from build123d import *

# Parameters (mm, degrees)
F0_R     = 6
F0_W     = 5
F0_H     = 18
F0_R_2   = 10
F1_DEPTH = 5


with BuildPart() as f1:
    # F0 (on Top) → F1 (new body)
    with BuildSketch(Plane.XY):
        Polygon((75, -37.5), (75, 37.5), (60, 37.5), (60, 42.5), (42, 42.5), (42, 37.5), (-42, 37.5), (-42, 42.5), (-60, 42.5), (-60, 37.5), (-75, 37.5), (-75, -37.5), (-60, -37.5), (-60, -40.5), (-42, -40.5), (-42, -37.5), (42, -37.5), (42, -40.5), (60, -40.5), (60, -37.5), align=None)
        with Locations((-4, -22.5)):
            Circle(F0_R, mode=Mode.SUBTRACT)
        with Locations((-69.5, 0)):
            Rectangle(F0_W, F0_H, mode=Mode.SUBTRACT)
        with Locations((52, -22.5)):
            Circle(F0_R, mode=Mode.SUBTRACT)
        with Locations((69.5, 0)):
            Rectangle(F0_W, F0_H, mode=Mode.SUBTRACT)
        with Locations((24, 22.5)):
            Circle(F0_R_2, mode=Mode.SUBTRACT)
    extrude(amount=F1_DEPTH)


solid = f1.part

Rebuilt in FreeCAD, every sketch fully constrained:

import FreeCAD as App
import Part
import Sketcher


def add_polygon(sketch, points):
    """Adds a closed chain of lines whose ends are joined by coincident constraints."""
    first, n = sketch.GeometryCount, len(points)
    for a, b in zip(points, points[1:] + points[:1]):
        sketch.addGeometry(Part.LineSegment(App.Vector(*a, 0), App.Vector(*b, 0)), False)
    for i in range(n):
        sketch.addConstraint(Sketcher.Constraint("Coincident", first + i, 2, first + (i + 1) % n, 1))

doc = App.newDocument("Part")
params = doc.addObject("Spreadsheet::Sheet", "Params")
for row, (alias, value) in enumerate([
    ("sketch1_diameter", "12 mm"),
    ("sketch1_diameter2", "20 mm"),
    ("sketch1_width", "15 mm"),
    ("sketch1_width2", "18 mm"),
    ("sketch1_width3", "84 mm"),
    ("pad1_length", "5 mm"),
], start=1):
    params.set(f"A{row}", alias)
    params.set(f"B{row}", "=" + value)
    params.setAlias(f"B{row}", alias)

body = doc.addObject("PartDesign::Body", "Body")

sketch1 = doc.addObject("Sketcher::SketchObject", "Sketch")
body.addObject(sketch1)
sketch1.AttachmentSupport = (doc.XY_Plane, [""])
sketch1.MapMode = "FlatFace"
add_polygon(sketch1, [(75, -37.5), (75, 37.5), (60, 37.5), (60, 42.5), (42, 42.5), (42, 37.5), (-42, 37.5), (-42, 42.5), (-60, 42.5), (-60, 37.5), (-75, 37.5), (-75, -37.5), (-60, -37.5), (-60, -40.5), (-42, -40.5), (-42, -37.5), (42, -37.5), (42, -40.5), (60, -40.5), (60, -37.5)])
sketch1.addGeometry(Part.Circle(App.Vector(-4, -22.5, 0), App.Vector(0, 0, 1), 6), False)
add_polygon(sketch1, [(-67, -9), (-72, -9), (-72, 9), (-67, 9)])
sketch1.addGeometry(Part.Circle(App.Vector(52, -22.5, 0), App.Vector(0, 0, 1), 6), False)
add_polygon(sketch1, [(72, -9), (67, -9), (67, 9), (72, 9)])
sketch1.addGeometry(Part.Circle(App.Vector(24, 22.5, 0), App.Vector(0, 0, 1), 10), False)
sketch1.addConstraint([
    Sketcher.Constraint("Vertical", 0),
    Sketcher.Constraint("Horizontal", 1),
    Sketcher.Constraint("Vertical", 2),
    Sketcher.Constraint("Horizontal", 3),
    Sketcher.Constraint("Vertical", 4),
    Sketcher.Constraint("Horizontal", 5),
    Sketcher.Constraint("Vertical", 6),
    Sketcher.Constraint("Horizontal", 7),
    Sketcher.Constraint("Vertical", 8),
    Sketcher.Constraint("Horizontal", 9),
    Sketcher.Constraint("Vertical", 10),
    Sketcher.Constraint("Horizontal", 11),
    Sketcher.Constraint("Vertical", 12),
    Sketcher.Constraint("Horizontal", 13),
    Sketcher.Constraint("Vertical", 14),
    Sketcher.Constraint("Horizontal", 15),
    Sketcher.Constraint("Vertical", 16),
    Sketcher.Constraint("Horizontal", 17),
    Sketcher.Constraint("Vertical", 18),
    Sketcher.Constraint("Horizontal", 19),
    Sketcher.Constraint("Horizontal", 21),
    Sketcher.Constraint("Vertical", 22),
    Sketcher.Constraint("Horizontal", 23),
    Sketcher.Constraint("Vertical", 24),
    Sketcher.Constraint("Horizontal", 26),
    Sketcher.Constraint("Vertical", 27),
    Sketcher.Constraint("Horizontal", 28),
    Sketcher.Constraint("Vertical", 29),
    Sketcher.Constraint("Equal", 20, 25),
    Sketcher.Constraint("Symmetric", 0, 2, 10, 2, -1, 1),
    Sketcher.Constraint("Symmetric", 4, 2, 14, 2, -1, 1),
    Sketcher.Constraint("Symmetric", 8, 2, 18, 2, -1, 1),
    Sketcher.Constraint("Symmetric", 23, 2, 26, 2, -1, 1),
    Sketcher.Constraint("Symmetric", 21, 2, 28, 2, -1, 1),
    Sketcher.Constraint("Symmetric", 3, 2, 6, 2, -2),
    Sketcher.Constraint("Symmetric", 1, 2, 8, 2, -2),
    Sketcher.Constraint("Symmetric", 13, 2, 16, 2, -2),
    Sketcher.Constraint("Horizontal", 20, 3, 25, 3),
    Sketcher.Constraint("Horizontal", 1, 2, 4, 2),
    Sketcher.Constraint("Horizontal", 24, 2, 26, 2),
    Sketcher.Constraint("Vertical", 8, 2, 11, 2),
    Sketcher.Constraint("Equal", 28, 2),
    Sketcher.Constraint("Equal", 17, 22),
    Sketcher.Constraint("Diameter", 20, 12.0),
    Sketcher.Constraint("Diameter", 30, 20.0),
    Sketcher.Constraint("DistanceX", 1, 2, 1, 1, 15.0),
    Sketcher.Constraint("DistanceX", 3, 2, 3, 1, 18.0),
    Sketcher.Constraint("DistanceX", 5, 2, 5, 1, 84.0),
    Sketcher.Constraint("DistanceX", 21, 2, 21, 1, 5.0),
    Sketcher.Constraint("DistanceY", 0, 1, 0, 2, 75.0),
    Sketcher.Constraint("DistanceY", 12, 2, 12, 1, 3.0),
    Sketcher.Constraint("DistanceX", 20, 3, -1, 1, 4.0),
    Sketcher.Constraint("DistanceX", -1, 1, 25, 3, 52.0),
    Sketcher.Constraint("DistanceX", -1, 1, 30, 3, 24.0),
    Sketcher.Constraint("DistanceX", 21, 2, -1, 1, 72.0),
    Sketcher.Constraint("DistanceY", 20, 3, 30, 3, 45.0),
    Sketcher.Constraint("DistanceY", 30, 3, 0, 2, 15.0),
])
sketch1.setExpression("Constraints[71]", "Params.sketch1_diameter")
sketch1.setExpression("Constraints[72]", "Params.sketch1_diameter2")
sketch1.setExpression("Constraints[73]", "Params.sketch1_width")
sketch1.setExpression("Constraints[74]", "Params.sketch1_width2")
sketch1.setExpression("Constraints[75]", "Params.sketch1_width3")
pad1 = doc.addObject("PartDesign::Pad", "Pad")
body.addObject(pad1)
pad1.Profile = sketch1
pad1.setExpression("Length", "Params.pad1_length")

doc.recompute()
